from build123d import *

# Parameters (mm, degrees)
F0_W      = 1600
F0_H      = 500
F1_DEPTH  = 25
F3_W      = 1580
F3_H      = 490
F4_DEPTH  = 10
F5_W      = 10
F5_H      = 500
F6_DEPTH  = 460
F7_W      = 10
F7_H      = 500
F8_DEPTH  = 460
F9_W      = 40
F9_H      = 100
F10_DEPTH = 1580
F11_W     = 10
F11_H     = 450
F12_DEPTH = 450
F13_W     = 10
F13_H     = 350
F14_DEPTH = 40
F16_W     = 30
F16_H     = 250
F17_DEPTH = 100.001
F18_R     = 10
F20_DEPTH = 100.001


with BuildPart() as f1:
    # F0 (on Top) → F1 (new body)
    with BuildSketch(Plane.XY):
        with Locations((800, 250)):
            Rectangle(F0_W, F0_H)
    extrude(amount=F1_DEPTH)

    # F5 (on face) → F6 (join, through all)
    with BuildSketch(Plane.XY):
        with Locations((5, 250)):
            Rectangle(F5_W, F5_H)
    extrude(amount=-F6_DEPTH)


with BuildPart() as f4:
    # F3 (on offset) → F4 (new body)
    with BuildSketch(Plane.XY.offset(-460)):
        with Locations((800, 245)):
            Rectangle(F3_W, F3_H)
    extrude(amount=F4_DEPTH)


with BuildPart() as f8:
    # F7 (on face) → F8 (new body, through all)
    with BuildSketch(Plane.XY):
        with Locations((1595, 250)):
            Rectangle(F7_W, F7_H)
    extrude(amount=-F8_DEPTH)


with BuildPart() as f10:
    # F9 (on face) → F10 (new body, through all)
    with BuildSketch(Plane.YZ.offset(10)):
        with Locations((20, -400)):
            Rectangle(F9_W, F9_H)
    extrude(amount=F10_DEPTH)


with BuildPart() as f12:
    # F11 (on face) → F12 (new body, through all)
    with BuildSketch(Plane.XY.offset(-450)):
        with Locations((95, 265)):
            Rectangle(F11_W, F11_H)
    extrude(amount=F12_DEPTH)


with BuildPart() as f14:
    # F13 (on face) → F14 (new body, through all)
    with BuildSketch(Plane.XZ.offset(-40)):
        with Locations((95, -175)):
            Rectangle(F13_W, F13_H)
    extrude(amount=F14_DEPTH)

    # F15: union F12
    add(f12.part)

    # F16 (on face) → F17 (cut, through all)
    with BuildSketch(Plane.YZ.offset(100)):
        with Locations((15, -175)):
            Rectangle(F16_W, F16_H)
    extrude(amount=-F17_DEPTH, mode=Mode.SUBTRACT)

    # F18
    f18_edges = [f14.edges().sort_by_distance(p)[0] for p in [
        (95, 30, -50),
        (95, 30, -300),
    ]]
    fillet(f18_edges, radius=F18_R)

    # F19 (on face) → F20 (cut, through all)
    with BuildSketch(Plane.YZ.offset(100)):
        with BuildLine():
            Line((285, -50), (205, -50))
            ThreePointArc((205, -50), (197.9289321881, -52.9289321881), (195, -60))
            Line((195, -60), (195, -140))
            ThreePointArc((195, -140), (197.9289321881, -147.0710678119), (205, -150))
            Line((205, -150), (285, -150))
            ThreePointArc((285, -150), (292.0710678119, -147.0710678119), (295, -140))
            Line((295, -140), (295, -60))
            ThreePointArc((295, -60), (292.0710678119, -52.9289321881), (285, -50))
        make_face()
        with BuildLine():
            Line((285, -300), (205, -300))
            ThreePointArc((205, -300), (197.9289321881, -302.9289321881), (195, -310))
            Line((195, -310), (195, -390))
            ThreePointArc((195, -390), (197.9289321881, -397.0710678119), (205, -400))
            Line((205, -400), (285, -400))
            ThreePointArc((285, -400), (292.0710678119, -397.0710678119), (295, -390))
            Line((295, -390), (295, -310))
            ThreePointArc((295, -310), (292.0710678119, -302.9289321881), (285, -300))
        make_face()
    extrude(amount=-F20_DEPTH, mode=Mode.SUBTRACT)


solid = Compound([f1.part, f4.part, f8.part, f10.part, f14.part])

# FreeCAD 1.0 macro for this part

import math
import FreeCAD as App
import Part
import Sketcher
from FreeCAD import Vector
Q = App.Units.Quantity


def edges_at(feature, points):
    """Names of the edges that pass closest to the given points."""
    edges = feature.Shape.Edges
    near = lambda p: min(range(len(edges)), key=lambda i: edges[i].distToShape(Part.Vertex(*p))[0])
    return sorted({f"Edge{near(p) + 1}" for p in points})

doc = App.newDocument("Part")
body = doc.addObject("PartDesign::Body", "Body")

# Sketch on XY plane
sketch1 = doc.addObject("Sketcher::SketchObject", "Sketch")
body.addObject(sketch1)
sketch1.AttachmentSupport = (doc.XY_Plane, [""])
sketch1.MapMode = "FlatFace"
sketch1.addGeometry([
    Part.LineSegment(Vector(0, 500, 0), Vector(0, 0, 0)),
    Part.LineSegment(Vector(0, 0, 0), Vector(1600, 0, 0)),
    Part.LineSegment(Vector(1600, 0, 0), Vector(1600, 500, 0)),
    Part.LineSegment(Vector(1600, 500, 0), Vector(0, 500, 0)),
], False)
sketch1.addConstraint([
    Sketcher.Constraint("Coincident", 0, 2, 1, 1),
    Sketcher.Constraint("Coincident", 1, 2, 2, 1),
    Sketcher.Constraint("Coincident", 2, 2, 3, 1),
    Sketcher.Constraint("Coincident", 3, 2, 0, 1),
    Sketcher.Constraint("Vertical", 0),
    Sketcher.Constraint("Horizontal", 1),
    Sketcher.Constraint("Vertical", 2),
    Sketcher.Constraint("Horizontal", 3),
    Sketcher.Constraint("Coincident", 0, 2, -1, 1),
    Sketcher.Constraint("DistanceX", 1, 1, 1, 2, Q("1600 mm")),
    Sketcher.Constraint("DistanceY", 0, 2, 0, 1, Q("500 mm")),
])
pad1 = doc.addObject("PartDesign::Pad", "Pad")
body.addObject(pad1)
pad1.Profile = sketch1
pad1.Length = 25

# Sketch on XY plane
sketch2 = doc.addObject("Sketcher::SketchObject", "Sketch001")
body.addObject(sketch2)
sketch2.AttachmentSupport = (doc.XY_Plane, [""])
sketch2.MapMode = "FlatFace"
sketch2.addGeometry([
    Part.LineSegment(Vector(0, 500, 0), Vector(0, 0, 0)),
    Part.LineSegment(Vector(0, 0, 0), Vector(10, 0, 0)),
    Part.LineSegment(Vector(10, 0, 0), Vector(10, 500, 0)),
    Part.LineSegment(Vector(10, 500, 0), Vector(0, 500, 0)),
], False)
sketch2.addConstraint([
    Sketcher.Constraint("Coincident", 0, 2, 1, 1),
    Sketcher.Constraint("Coincident", 1, 2, 2, 1),
    Sketcher.Constraint("Coincident", 2, 2, 3, 1),
    Sketcher.Constraint("Coincident", 3, 2, 0, 1),
    Sketcher.Constraint("Vertical", 0),
    Sketcher.Constraint("Horizontal", 1),
    Sketcher.Constraint("Vertical", 2),
    Sketcher.Constraint("Horizontal", 3),
    Sketcher.Constraint("Coincident", 0, 2, -1, 1),
    Sketcher.Constraint("DistanceX", 1, 1, 1, 2, Q("10 mm")),
    Sketcher.Constraint("DistanceY", 0, 2, 0, 1, Q("500 mm")),
])
pad2 = doc.addObject("PartDesign::Pad", "Pad001")
body.addObject(pad2)
pad2.Profile = sketch2
pad2.Length = 460
pad2.Reversed = True
body2 = doc.addObject("PartDesign::Body", "Body001")

# Sketch on XY plane
sketch3 = doc.addObject("Sketcher::SketchObject", "Sketch002")
body2.addObject(sketch3)
sketch3.AttachmentSupport = (doc.getObject("XY_Plane001"), [""])
sketch3.MapMode = "FlatFace"
sketch3.AttachmentOffset = App.Placement(Vector(0, 0, -460), App.Rotation())
sketch3.addGeometry([
    Part.LineSegment(Vector(10, 490, 0), Vector(10, 0, 0)),
    Part.LineSegment(Vector(10, 0, 0), Vector(1590, 0, 0)),
    Part.LineSegment(Vector(1590, 0, 0), Vector(1590, 490, 0)),
    Part.LineSegment(Vector(1590, 490, 0), Vector(10, 490, 0)),
], False)
sketch3.addConstraint([
    Sketcher.Constraint("Coincident", 0, 2, 1, 1),
    Sketcher.Constraint("Coincident", 1, 2, 2, 1),
    Sketcher.Constraint("Coincident", 2, 2, 3, 1),
    Sketcher.Constraint("Coincident", 3, 2, 0, 1),
    Sketcher.Constraint("Vertical", 0),
    Sketcher.Constraint("Horizontal", 1),
    Sketcher.Constraint("Vertical", 2),
    Sketcher.Constraint("Horizontal", 3),
    Sketcher.Constraint("PointOnObject", 0, 2, -1),
    Sketcher.Constraint("DistanceX", 1, 1, 1, 2, Q("1580 mm")),
    Sketcher.Constraint("DistanceY", 0, 2, 0, 1, Q("490 mm")),
    Sketcher.Constraint("DistanceX", -1, 1, 0, 2, Q("10 mm")),
])
pad3 = doc.addObject("PartDesign::Pad", "Pad002")
body2.addObject(pad3)
pad3.Profile = sketch3
pad3.Length = 10
body3 = doc.addObject("PartDesign::Body", "Body002")

# Sketch on XY plane
sketch4 = doc.addObject("Sketcher::SketchObject", "Sketch003")
body3.addObject(sketch4)
sketch4.AttachmentSupport = (doc.getObject("XY_Plane002"), [""])
sketch4.MapMode = "FlatFace"
sketch4.addGeometry([
    Part.LineSegment(Vector(1590, 500, 0), Vector(1590, 0, 0)),
    Part.LineSegment(Vector(1590, 0, 0), Vector(1600, 0, 0)),
    Part.LineSegment(Vector(1600, 0, 0), Vector(1600, 500, 0)),
    Part.LineSegment(Vector(1600, 500, 0), Vector(1590, 500, 0)),
], False)
sketch4.addConstraint([
    Sketcher.Constraint("Coincident", 0, 2, 1, 1),
    Sketcher.Constraint("Coincident", 1, 2, 2, 1),
    Sketcher.Constraint("Coincident", 2, 2, 3, 1),
    Sketcher.Constraint("Coincident", 3, 2, 0, 1),
    Sketcher.Constraint("Vertical", 0),
    Sketcher.Constraint("Horizontal", 1),
    Sketcher.Constraint("Vertical", 2),
    Sketcher.Constraint("Horizontal", 3),
    Sketcher.Constraint("PointOnObject", 0, 2, -1),
    Sketcher.Constraint("DistanceX", 1, 1, 1, 2, Q("10 mm")),
    Sketcher.Constraint("DistanceY", 0, 2, 0, 1, Q("500 mm")),
    Sketcher.Constraint("DistanceX", -1, 1, 0, 2, Q("1590 mm")),
])
pad4 = doc.addObject("PartDesign::Pad", "Pad003")
body3.addObject(pad4)
pad4.Profile = sketch4
pad4.Length = 460
pad4.Reversed = True
body4 = doc.addObject("PartDesign::Body", "Body003")

# Sketch on YZ plane
sketch5 = doc.addObject("Sketcher::SketchObject", "Sketch004")
body4.addObject(sketch5)
sketch5.AttachmentSupport = (doc.getObject("YZ_Plane003"), [""])
sketch5.MapMode = "FlatFace"
sketch5.AttachmentOffset = App.Placement(Vector(0, 0, 10), App.Rotation())
sketch5.addGeometry([
    Part.LineSegment(Vector(0, -350, 0), Vector(0, -450, 0)),
    Part.LineSegment(Vector(0, -450, 0), Vector(40, -450, 0)),
    Part.LineSegment(Vector(40, -450, 0), Vector(40, -350, 0)),
    Part.LineSegment(Vector(40, -350, 0), Vector(0, -350, 0)),
], False)
sketch5.addConstraint([
    Sketcher.Constraint("Coincident", 0, 2, 1, 1),
    Sketcher.Constraint("Coincident", 1, 2, 2, 1),
    Sketcher.Constraint("Coincident", 2, 2, 3, 1),
    Sketcher.Constraint("Coincident", 3, 2, 0, 1),
    Sketcher.Constraint("Vertical", 0),
    Sketcher.Constraint("Horizontal", 1),
    Sketcher.Constraint("Vertical", 2),
    Sketcher.Constraint("Horizontal", 3),
    Sketcher.Constraint("PointOnObject", 0, 2, -2),
    Sketcher.Constraint("DistanceX", 1, 1, 1, 2, Q("40 mm")),
    Sketcher.Constraint("DistanceY", 0, 2, 0, 1, Q("100 mm")),
    Sketcher.Constraint("DistanceY", 0, 2, -1, 1, Q("450 mm")),
])
pad5 = doc.addObject("PartDesign::Pad", "Pad004")
body4.addObject(pad5)
pad5.Profile = sketch5
pad5.Length = 1580
body5 = doc.addObject("PartDesign::Body", "Body004")

# Sketch on XY plane
sketch6 = doc.addObject("Sketcher::SketchObject", "Sketch005")
body5.addObject(sketch6)
sketch6.AttachmentSupport = (doc.getObject("XY_Plane004"), [""])
sketch6.MapMode = "FlatFace"
sketch6.AttachmentOffset = App.Placement(Vector(0, 0, -450), App.Rotation())
sketch6.addGeometry([
    Part.LineSegment(Vector(90, 490, 0), Vector(90, 40, 0)),
    Part.LineSegment(Vector(90, 40, 0), Vector(100, 40, 0)),
    Part.LineSegment(Vector(100, 40, 0), Vector(100, 490, 0)),
    Part.LineSegment(Vector(100, 490, 0), Vector(90, 490, 0)),
], False)
sketch6.addConstraint([
    Sketcher.Constraint("Coincident", 0, 2, 1, 1),
    Sketcher.Constraint("Coincident", 1, 2, 2, 1),
    Sketcher.Constraint("Coincident", 2, 2, 3, 1),
    Sketcher.Constraint("Coincident", 3, 2, 0, 1),
    Sketcher.Constraint("Vertical", 0),
    Sketcher.Constraint("Horizontal", 1),
    Sketcher.Constraint("Vertical", 2),
    Sketcher.Constraint("Horizontal", 3),
    Sketcher.Constraint("DistanceX", 1, 1, 1, 2, Q("10 mm")),
    Sketcher.Constraint("DistanceY", 0, 2, 0, 1, Q("450 mm")),
    Sketcher.Constraint("DistanceX", -1, 1, 0, 2, Q("90 mm")),
    Sketcher.Constraint("DistanceY", -1, 1, 0, 2, Q("40 mm")),
])
pad6 = doc.addObject("PartDesign::Pad", "Pad005")
body5.addObject(pad6)
pad6.Profile = sketch6
pad6.Length = 450
body6 = doc.addObject("PartDesign::Body", "Body005")

# Sketch on XZ plane
sketch7 = doc.addObject("Sketcher::SketchObject", "Sketch006")
body6.addObject(sketch7)
sketch7.AttachmentSupport = (doc.getObject("XZ_Plane005"), [""])
sketch7.MapMode = "FlatFace"
sketch7.AttachmentOffset = App.Placement(Vector(0, 0, -40), App.Rotation())
sketch7.addGeometry([
    Part.LineSegment(Vector(90, 0, 0), Vector(90, -350, 0)),
    Part.LineSegment(Vector(90, -350, 0), Vector(100, -350, 0)),
    Part.LineSegment(Vector(100, -350, 0), Vector(100, 0, 0)),
    Part.LineSegment(Vector(100, 0, 0), Vector(90, 0, 0)),
], False)
sketch7.addConstraint([
    Sketcher.Constraint("Coincident", 0, 2, 1, 1),
    Sketcher.Constraint("Coincident", 1, 2, 2, 1),
    Sketcher.Constraint("Coincident", 2, 2, 3, 1),
    Sketcher.Constraint("Coincident", 3, 2, 0, 1),
    Sketcher.Constraint("Vertical", 0),
    Sketcher.Constraint("Horizontal", 1),
    Sketcher.Constraint("Vertical", 2),
    Sketcher.Constraint("Horizontal", 3),
    Sketcher.Constraint("PointOnObject", 2, 2, -1),
    Sketcher.Constraint("DistanceX", 1, 1, 1, 2, Q("10 mm")),
    Sketcher.Constraint("DistanceY", 0, 2, 0, 1, Q("350 mm")),
    Sketcher.Constraint("DistanceX", -1, 1, 0, 2, Q("90 mm")),
])
pad7 = doc.addObject("PartDesign::Pad", "Pad006")
body6.addObject(pad7)
pad7.Profile = sketch7
pad7.Length = 40
doc.recompute()

boolean = doc.addObject("PartDesign::Boolean", "Boolean")
body6.addObject(boolean)
boolean.Type = "Fuse"
boolean.addObjects([body5])

# Sketch on YZ plane
sketch8 = doc.addObject("Sketcher::SketchObject", "Sketch007")
body6.addObject(sketch8)
sketch8.AttachmentSupport = (doc.getObject("YZ_Plane005"), [""])
sketch8.MapMode = "FlatFace"
sketch8.AttachmentOffset = App.Placement(Vector(0, 0, 100), App.Rotation())
sketch8.addGeometry([
    Part.LineSegment(Vector(0, -50, 0), Vector(0, -300, 0)),
    Part.LineSegment(Vector(0, -300, 0), Vector(30, -300, 0)),
    Part.LineSegment(Vector(30, -300, 0), Vector(30, -50, 0)),
    Part.LineSegment(Vector(30, -50, 0), Vector(0, -50, 0)),
], False)
sketch8.addConstraint([
    Sketcher.Constraint("Coincident", 0, 2, 1, 1),
    Sketcher.Constraint("Coincident", 1, 2, 2, 1),
    Sketcher.Constraint("Coincident", 2, 2, 3, 1),
    Sketcher.Constraint("Coincident", 3, 2, 0, 1),
    Sketcher.Constraint("Vertical", 0),
    Sketcher.Constraint("Horizontal", 1),
    Sketcher.Constraint("Vertical", 2),
    Sketcher.Constraint("Horizontal", 3),
    Sketcher.Constraint("PointOnObject", 0, 2, -2),
    Sketcher.Constraint("DistanceX", 1, 1, 1, 2, Q("30 mm")),
    Sketcher.Constraint("DistanceY", 0, 2, 0, 1, Q("250 mm")),
    Sketcher.Constraint("DistanceY", 0, 2, -1, 1, Q("300 mm")),
])
pocket1 = doc.addObject("PartDesign::Pocket", "Pocket")
body6.addObject(pocket1)
pocket1.Profile = sketch8
pocket1.Type = "ThroughAll"
doc.recompute()

fillet = doc.addObject("PartDesign::Fillet", "Fillet")
body6.addObject(fillet)
fillet.Base = (pocket1, edges_at(pocket1, [(95, 30, -50), (95, 30, -300)]))
fillet.Radius = 10

# Sketch on YZ plane
sketch9 = doc.addObject("Sketcher::SketchObject", "Sketch008")
body6.addObject(sketch9)
sketch9.AttachmentSupport = (doc.getObject("YZ_Plane005"), [""])
sketch9.MapMode = "FlatFace"
sketch9.AttachmentOffset = App.Placement(Vector(0, 0, 100), App.Rotation())
sketch9.addGeometry([
    Part.LineSegment(Vector(285, -50, 0), Vector(205, -50, 0)),  # 0
    Part.ArcOfCircle(Part.Circle(Vector(205, -60, 0), Vector(0, 0, 1), 10), math.radians(90), math.radians(180)),  # 1
    Part.LineSegment(Vector(195, -60, 0), Vector(195, -140, 0)),  # 2
    Part.ArcOfCircle(Part.Circle(Vector(205, -140, 0), Vector(0, 0, 1), 10), math.radians(180), math.radians(270)),  # 3
    Part.LineSegment(Vector(205, -150, 0), Vector(285, -150, 0)),  # 4
    Part.ArcOfCircle(Part.Circle(Vector(285, -140, 0), Vector(0, 0, 1), 10), math.radians(-90), math.radians(0)),  # 5
    Part.LineSegment(Vector(295, -140, 0), Vector(295, -60, 0)),  # 6
    Part.ArcOfCircle(Part.Circle(Vector(285, -60, 0), Vector(0, 0, 1), 10), math.radians(0), math.radians(90)),  # 7
    Part.LineSegment(Vector(285, -300, 0), Vector(205, -300, 0)),  # 8
    Part.ArcOfCircle(Part.Circle(Vector(205, -310, 0), Vector(0, 0, 1), 10), math.radians(90), math.radians(180)),  # 9
    Part.LineSegment(Vector(195, -310, 0), Vector(195, -390, 0)),  # 10
    Part.ArcOfCircle(Part.Circle(Vector(205, -390, 0), Vector(0, 0, 1), 10), math.radians(180), math.radians(270)),  # 11
    Part.LineSegment(Vector(205, -400, 0), Vector(285, -400, 0)),  # 12
    Part.ArcOfCircle(Part.Circle(Vector(285, -390, 0), Vector(0, 0, 1), 10), math.radians(-90), math.radians(0)),  # 13
    Part.LineSegment(Vector(295, -390, 0), Vector(295, -310, 0)),  # 14
    Part.ArcOfCircle(Part.Circle(Vector(285, -310, 0), Vector(0, 0, 1), 10), math.radians(0), math.radians(90)),  # 15
], False)
sketch9.addConstraint([
    Sketcher.Constraint("Tangent", 0, 2, 1, 1),
    Sketcher.Constraint("Tangent", 1, 2, 2, 1),
    Sketcher.Constraint("Tangent", 2, 2, 3, 1),
    Sketcher.Constraint("Tangent", 3, 2, 4, 1),
    Sketcher.Constraint("Tangent", 4, 2, 5, 1),
    Sketcher.Constraint("Tangent", 5, 2, 6, 1),
    Sketcher.Constraint("Tangent", 6, 2, 7, 1),
    Sketcher.Constraint("Tangent", 7, 2, 0, 1),
    Sketcher.Constraint("Tangent", 8, 2, 9, 1),
    Sketcher.Constraint("Tangent", 9, 2, 10, 1),
    Sketcher.Constraint("Tangent", 10, 2, 11, 1),
    Sketcher.Constraint("Tangent", 11, 2, 12, 1),
    Sketcher.Constraint("Tangent", 12, 2, 13, 1),
    Sketcher.Constraint("Tangent", 13, 2, 14, 1),
    Sketcher.Constraint("Tangent", 14, 2, 15, 1),
    Sketcher.Constraint("Tangent", 15, 2, 8, 1),
    Sketcher.Constraint("Horizontal", 0),
    Sketcher.Constraint("Vertical", 2),
    Sketcher.Constraint("Horizontal", 4),
    Sketcher.Constraint("Vertical", 6),
    Sketcher.Constraint("Horizontal", 8),
    Sketcher.Constraint("Vertical", 10),
    Sketcher.Constraint("Horizontal", 12),
    Sketcher.Constraint("Vertical", 14),
    Sketcher.Constraint("Equal", 1, 3),
    Sketcher.Constraint("Equal", 3, 5),
    Sketcher.Constraint("Equal", 5, 7),
    Sketcher.Constraint("Equal", 7, 9),
    Sketcher.Constraint("Equal", 9, 11),
    Sketcher.Constraint("Equal", 11, 13),
    Sketcher.Constraint("Equal", 13, 15),
    Sketcher.Constraint("Vertical", 3, 3, 9, 3),
    Sketcher.Constraint("Vertical", 7, 3, 13, 3),
    Sketcher.Constraint("Equal", 12, 2),
    Sketcher.Constraint("Equal", 6, 10),
    Sketcher.Constraint("Radius", 1, Q("10 mm")),
    Sketcher.Constraint("DistanceX", 0, 2, 0, 1, Q("80 mm")),
    Sketcher.Constraint("DistanceX", -1, 1, 1, 3, Q("205 mm")),
    Sketcher.Constraint("DistanceY", 1, 3, -1, 1, Q("60 mm")),
    Sketcher.Constraint("DistanceY", 9, 3, -1, 1, Q("310 mm")),
])
pocket2 = doc.addObject("PartDesign::Pocket", "Pocket001")
body6.addObject(pocket2)
pocket2.Profile = sketch9
pocket2.Type = "ThroughAll"

doc.recompute()
